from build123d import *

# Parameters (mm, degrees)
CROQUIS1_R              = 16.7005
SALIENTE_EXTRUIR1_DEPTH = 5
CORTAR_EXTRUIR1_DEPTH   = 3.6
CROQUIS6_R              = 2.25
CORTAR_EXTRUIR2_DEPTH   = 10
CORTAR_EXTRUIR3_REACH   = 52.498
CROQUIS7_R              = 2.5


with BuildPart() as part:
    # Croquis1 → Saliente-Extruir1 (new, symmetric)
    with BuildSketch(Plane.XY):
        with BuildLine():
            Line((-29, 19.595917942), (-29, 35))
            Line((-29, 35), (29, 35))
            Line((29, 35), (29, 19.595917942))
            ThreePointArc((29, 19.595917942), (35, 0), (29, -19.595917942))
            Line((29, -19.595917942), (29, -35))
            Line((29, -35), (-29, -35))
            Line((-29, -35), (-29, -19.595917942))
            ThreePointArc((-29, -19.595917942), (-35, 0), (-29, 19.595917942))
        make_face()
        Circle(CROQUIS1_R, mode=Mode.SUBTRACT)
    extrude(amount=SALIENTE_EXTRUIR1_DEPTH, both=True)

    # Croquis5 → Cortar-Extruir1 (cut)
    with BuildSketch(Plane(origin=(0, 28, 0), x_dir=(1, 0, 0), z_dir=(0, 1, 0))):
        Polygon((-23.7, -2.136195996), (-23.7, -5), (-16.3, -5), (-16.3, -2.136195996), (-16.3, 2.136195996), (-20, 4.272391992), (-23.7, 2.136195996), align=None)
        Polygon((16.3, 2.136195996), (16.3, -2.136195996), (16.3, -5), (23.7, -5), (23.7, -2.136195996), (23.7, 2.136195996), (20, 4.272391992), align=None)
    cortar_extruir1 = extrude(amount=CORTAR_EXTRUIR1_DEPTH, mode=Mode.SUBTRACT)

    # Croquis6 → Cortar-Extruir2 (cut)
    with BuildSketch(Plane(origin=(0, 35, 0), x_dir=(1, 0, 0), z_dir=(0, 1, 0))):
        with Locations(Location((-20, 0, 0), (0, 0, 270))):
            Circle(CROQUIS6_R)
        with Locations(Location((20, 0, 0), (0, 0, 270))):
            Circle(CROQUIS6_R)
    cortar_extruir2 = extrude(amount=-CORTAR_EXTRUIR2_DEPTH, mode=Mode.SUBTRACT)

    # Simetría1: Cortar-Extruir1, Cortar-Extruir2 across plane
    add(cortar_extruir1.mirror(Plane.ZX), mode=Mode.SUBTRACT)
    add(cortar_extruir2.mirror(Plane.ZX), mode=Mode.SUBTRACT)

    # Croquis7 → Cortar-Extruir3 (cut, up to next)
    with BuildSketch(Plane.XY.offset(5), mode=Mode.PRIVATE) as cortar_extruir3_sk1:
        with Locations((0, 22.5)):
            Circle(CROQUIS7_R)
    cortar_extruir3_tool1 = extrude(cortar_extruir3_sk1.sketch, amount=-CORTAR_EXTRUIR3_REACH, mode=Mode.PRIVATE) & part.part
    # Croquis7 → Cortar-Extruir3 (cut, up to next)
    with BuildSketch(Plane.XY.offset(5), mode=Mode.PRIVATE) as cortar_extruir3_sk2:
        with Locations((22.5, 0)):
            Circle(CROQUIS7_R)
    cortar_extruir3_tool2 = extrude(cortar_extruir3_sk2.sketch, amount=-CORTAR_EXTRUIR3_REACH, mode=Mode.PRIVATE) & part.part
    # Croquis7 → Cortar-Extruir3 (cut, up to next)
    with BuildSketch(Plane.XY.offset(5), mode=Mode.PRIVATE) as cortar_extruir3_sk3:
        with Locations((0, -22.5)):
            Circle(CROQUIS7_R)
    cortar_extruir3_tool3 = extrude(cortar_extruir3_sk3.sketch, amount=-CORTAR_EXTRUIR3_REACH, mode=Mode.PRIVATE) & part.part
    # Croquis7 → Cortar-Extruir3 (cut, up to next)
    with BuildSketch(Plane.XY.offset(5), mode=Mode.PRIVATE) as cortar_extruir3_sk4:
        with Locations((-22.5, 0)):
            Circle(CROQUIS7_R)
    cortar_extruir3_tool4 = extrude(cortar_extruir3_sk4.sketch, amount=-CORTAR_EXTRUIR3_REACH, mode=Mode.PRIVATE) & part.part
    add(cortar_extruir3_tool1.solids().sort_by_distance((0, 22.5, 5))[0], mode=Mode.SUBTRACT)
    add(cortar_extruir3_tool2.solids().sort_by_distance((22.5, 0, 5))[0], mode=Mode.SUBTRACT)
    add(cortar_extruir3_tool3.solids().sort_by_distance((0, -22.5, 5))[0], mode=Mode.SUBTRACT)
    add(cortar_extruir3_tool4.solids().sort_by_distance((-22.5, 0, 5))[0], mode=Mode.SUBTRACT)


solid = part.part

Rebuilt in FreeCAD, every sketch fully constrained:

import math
import FreeCAD as App
import Part
import Sketcher
Q = App.Units.Quantity


def add_polygon(sketch, points):
    """Adds a closed chain of lines whose ends are joined by coincident constraints."""
    first, n = sketch.GeometryCount, len(points)
    for a, b in zip(points, points[1:] + points[:1]):
        sketch.addGeometry(Part.LineSegment(App.Vector(*a, 0), App.Vector(*b, 0)), False)
    for i in range(n):
        sketch.addConstraint(Sketcher.Constraint("Coincident", first + i, 2, first + (i + 1) % n, 1))

doc = App.newDocument("Part")
body = doc.addObject("PartDesign::Body", "Body")

# Sketch on XY plane
sketch1 = body.newObject("Sketcher::SketchObject", "Sketch")
sketch1.AttachmentSupport = (doc.getObject("XY_Plane"), [""])
sketch1.MapMode = "FlatFace"
sketch1.addGeometry([
    Part.LineSegment(App.Vector(-29, 35, 0), App.Vector(-29, 19.595918, 0)),  # 0
    Part.ArcOfCircle(Part.Circle(App.Vector(0, 0, 0), App.Vector(0, 0, 1), 35), math.radians(145.952268), math.radians(214.047732)),  # 1
    Part.LineSegment(App.Vector(-29, -19.595918, 0), App.Vector(-29, -35, 0)),  # 2
    Part.LineSegment(App.Vector(-29, -35, 0), App.Vector(29, -35, 0)),  # 3
    Part.LineSegment(App.Vector(29, -35, 0), App.Vector(29, -19.595918, 0)),  # 4
    Part.ArcOfCircle(Part.Circle(App.Vector(0, 0, 0), App.Vector(0, 0, 1), 35), math.radians(-34.047732), math.radians(34.047732)),  # 5
    Part.LineSegment(App.Vector(29, 19.595918, 0), App.Vector(29, 35, 0)),  # 6
    Part.LineSegment(App.Vector(29, 35, 0), App.Vector(-29, 35, 0)),  # 7
    Part.Circle(App.Vector(0, 0, 0), App.Vector(0, 0, 1), 16.7005),  # 8
], False)
sketch1.addConstraint([
    Sketcher.Constraint("Coincident", 0, 2, 1, 1),
    Sketcher.Constraint("Coincident", 1, 2, 2, 1),
    Sketcher.Constraint("Coincident", 2, 2, 3, 1),
    Sketcher.Constraint("Coincident", 3, 2, 4, 1),
    Sketcher.Constraint("Coincident", 4, 2, 5, 1),
    Sketcher.Constraint("Coincident", 5, 2, 6, 1),
    Sketcher.Constraint("Coincident", 6, 2, 7, 1),
    Sketcher.Constraint("Coincident", 7, 2, 0, 1),
    Sketcher.Constraint("Vertical", 0),
    Sketcher.Constraint("Vertical", 2),
    Sketcher.Constraint("Horizontal", 3),
    Sketcher.Constraint("Vertical", 4),
    Sketcher.Constraint("Vertical", 6),
    Sketcher.Constraint("Horizontal", 7),
    Sketcher.Constraint("Coincident", 1, 3, -1, 1),
    Sketcher.Constraint("Coincident", 5, 3, -1, 1),
    Sketcher.Constraint("Coincident", 8, 3, -1, 1),
    Sketcher.Constraint("Equal", 1, 5),
    Sketcher.Constraint("Symmetric", 2, 2, 6, 2, -1, 1),
    Sketcher.Constraint("Horizontal", 1, 2, 4, 2),
    Sketcher.Constraint("Horizontal", 0, 2, 5, 2),
    Sketcher.Constraint("Radius", 1, 35.0),
    Sketcher.Constraint("DistanceX", 3, 1, 3, 2, 58.0),
    Sketcher.Constraint("Diameter", 8, 33.401),
    Sketcher.Constraint("DistanceY", 2, 2, -1, 1, 35.0),
])
pad1 = body.newObject("PartDesign::Pad", "Pad")
pad1.Profile = sketch1
pad1.Length = 10
pad1.Midplane = True

# Sketch on XZ plane
sketch2 = body.newObject("Sketcher::SketchObject", "Sketch001")
sketch2.AttachmentSupport = (doc.getObject("XZ_Plane"), [""])
sketch2.MapMode = "FlatFace"
sketch2.AttachmentOffset = App.Placement(App.Vector(0, 0, -28), App.Rotation())
add_polygon(sketch2, [(-23.7, 5), (-16.3, 5), (-16.3, -2.136196), (-20, -4.272392), (-23.7, -2.136196)])  # lines 0-4
add_polygon(sketch2, [(16.3, -2.136196), (16.3, 5), (23.7, 5), (23.7, -2.136196), (20, -4.272392)])  # lines 5-9
sketch2.addConstraint([
    Sketcher.Constraint("Horizontal", 0),
    Sketcher.Constraint("Vertical", 1),
    Sketcher.Constraint("Vertical", 4),
    Sketcher.Constraint("Vertical", 5),
    Sketcher.Constraint("Horizontal", 6),
    Sketcher.Constraint("Vertical", 7),
    Sketcher.Constraint("Symmetric", 0, 2, 5, 2, -2),
    Sketcher.Constraint("Symmetric", 3, 2, 7, 2, -2),
    Sketcher.Constraint("Symmetric", 2, 2, 8, 2, -2),
    Sketcher.Constraint("Parallel", 2, 8),
    Sketcher.Constraint("Parallel", 3, 9),
    Sketcher.Constraint("Horizontal", 1, 2, 3, 2),
    Sketcher.Constraint("Angle", 2, Q("-150 deg")),
    Sketcher.Constraint("DistanceX", 0, 1, 0, 2, 7.4),
    Sketcher.Constraint("DistanceY", -1, 1, 0, 2, 5.0),
    Sketcher.Constraint("DistanceX", 2, 2, -1, 1, 20.0),
    Sketcher.Constraint("DistanceY", 1, 2, 1, 1, 7.136196),
])
pocket1 = body.newObject("PartDesign::Pocket", "Pocket")
pocket1.Profile = sketch2
pocket1.Length = 3.6

# Sketch on XZ plane
sketch3 = body.newObject("Sketcher::SketchObject", "Sketch002")
sketch3.AttachmentSupport = (doc.getObject("XZ_Plane"), [""])
sketch3.MapMode = "FlatFace"
sketch3.AttachmentOffset = App.Placement(App.Vector(0, 0, -35), App.Rotation())
sketch3.addGeometry([
    Part.Circle(App.Vector(-20, 0, 0), App.Vector(0, 0, 1), 2.25),
    Part.Circle(App.Vector(20, 0, 0), App.Vector(0, 0, 1), 2.25),
], False)
sketch3.addConstraint([
    Sketcher.Constraint("Equal", 0, 1),
    Sketcher.Constraint("Symmetric", 0, 3, 1, 3, -1, 1),
    Sketcher.Constraint("PointOnObject", 0, 3, -1),
    Sketcher.Constraint("Diameter", 0, 4.5),
    Sketcher.Constraint("DistanceX", 0, 3, -1, 1, 20.0),
])
pocket2 = body.newObject("PartDesign::Pocket", "Pocket001")
pocket2.Profile = sketch3
pocket2.Length = 10
pocket2.Reversed = True
doc.recompute()

mirrored = body.newObject("PartDesign::Mirrored", "Mirrored")
mirrored.Originals = [pocket1, pocket2]
mirrored.MirrorPlane = (doc.getObject("XZ_Plane"), [""])
body.Tip = mirrored

# Sketch on XY plane
sketch4 = body.newObject("Sketcher::SketchObject", "Sketch003")
sketch4.AttachmentSupport = (doc.getObject("XY_Plane"), [""])
sketch4.MapMode = "FlatFace"
sketch4.AttachmentOffset = App.Placement(App.Vector(0, 0, 5), App.Rotation())
sketch4.addGeometry(Part.Circle(App.Vector(0, 22.5, 0), App.Vector(0, 0, 1), 2.5), False)
sketch4.addConstraint([
    Sketcher.Constraint("PointOnObject", 0, 3, -2),
    Sketcher.Constraint("Diameter", 0, 5.0),
    Sketcher.Constraint("DistanceY", -1, 1, 0, 3, 22.5),
])
pocket3 = body.newObject("PartDesign::Pocket", "Pocket002")
pocket3.Profile = sketch4
pocket3.Type = "UpToFirst"

# Sketch on XY plane
sketch5 = body.newObject("Sketcher::SketchObject", "Sketch004")
sketch5.AttachmentSupport = (doc.getObject("XY_Plane"), [""])
sketch5.MapMode = "FlatFace"
sketch5.AttachmentOffset = App.Placement(App.Vector(0, 0, 5), App.Rotation())
sketch5.addGeometry(Part.Circle(App.Vector(22.5, 0, 0), App.Vector(0, 0, 1), 2.5), False)
sketch5.addConstraint([
    Sketcher.Constraint("PointOnObject", 0, 3, -1),
    Sketcher.Constraint("Diameter", 0, 5.0),
    Sketcher.Constraint("DistanceX", -1, 1, 0, 3, 22.5),
])
pocket4 = body.newObject("PartDesign::Pocket", "Pocket003")
pocket4.Profile = sketch5
pocket4.Type = "UpToFirst"

# Sketch on XY plane
sketch6 = body.newObject("Sketcher::SketchObject", "Sketch005")
sketch6.AttachmentSupport = (doc.getObject("XY_Plane"), [""])
sketch6.MapMode = "FlatFace"
sketch6.AttachmentOffset = App.Placement(App.Vector(0, 0, 5), App.Rotation())
sketch6.addGeometry(Part.Circle(App.Vector(0, -22.5, 0), App.Vector(0, 0, 1), 2.5), False)
sketch6.addConstraint([
    Sketcher.Constraint("PointOnObject", 0, 3, -2),
    Sketcher.Constraint("Diameter", 0, 5.0),
    Sketcher.Constraint("DistanceY", 0, 3, -1, 1, 22.5),
])
pocket5 = body.newObject("PartDesign::Pocket", "Pocket004")
pocket5.Profile = sketch6
pocket5.Type = "UpToFirst"

# Sketch on XY plane
sketch7 = body.newObject("Sketcher::SketchObject", "Sketch006")
sketch7.AttachmentSupport = (doc.getObject("XY_Plane"), [""])
sketch7.MapMode = "FlatFace"
sketch7.AttachmentOffset = App.Placement(App.Vector(0, 0, 5), App.Rotation())
sketch7.addGeometry(Part.Circle(App.Vector(-22.5, 0, 0), App.Vector(0, 0, 1), 2.5), False)
sketch7.addConstraint([
    Sketcher.Constraint("PointOnObject", 0, 3, -1),
    Sketcher.Constraint("Diameter", 0, 5.0),
    Sketcher.Constraint("DistanceX", 0, 3, -1, 1, 22.5),
])
pocket6 = body.newObject("PartDesign::Pocket", "Pocket005")
pocket6.Profile = sketch7
pocket6.Type = "UpToFirst"

doc.recompute()
